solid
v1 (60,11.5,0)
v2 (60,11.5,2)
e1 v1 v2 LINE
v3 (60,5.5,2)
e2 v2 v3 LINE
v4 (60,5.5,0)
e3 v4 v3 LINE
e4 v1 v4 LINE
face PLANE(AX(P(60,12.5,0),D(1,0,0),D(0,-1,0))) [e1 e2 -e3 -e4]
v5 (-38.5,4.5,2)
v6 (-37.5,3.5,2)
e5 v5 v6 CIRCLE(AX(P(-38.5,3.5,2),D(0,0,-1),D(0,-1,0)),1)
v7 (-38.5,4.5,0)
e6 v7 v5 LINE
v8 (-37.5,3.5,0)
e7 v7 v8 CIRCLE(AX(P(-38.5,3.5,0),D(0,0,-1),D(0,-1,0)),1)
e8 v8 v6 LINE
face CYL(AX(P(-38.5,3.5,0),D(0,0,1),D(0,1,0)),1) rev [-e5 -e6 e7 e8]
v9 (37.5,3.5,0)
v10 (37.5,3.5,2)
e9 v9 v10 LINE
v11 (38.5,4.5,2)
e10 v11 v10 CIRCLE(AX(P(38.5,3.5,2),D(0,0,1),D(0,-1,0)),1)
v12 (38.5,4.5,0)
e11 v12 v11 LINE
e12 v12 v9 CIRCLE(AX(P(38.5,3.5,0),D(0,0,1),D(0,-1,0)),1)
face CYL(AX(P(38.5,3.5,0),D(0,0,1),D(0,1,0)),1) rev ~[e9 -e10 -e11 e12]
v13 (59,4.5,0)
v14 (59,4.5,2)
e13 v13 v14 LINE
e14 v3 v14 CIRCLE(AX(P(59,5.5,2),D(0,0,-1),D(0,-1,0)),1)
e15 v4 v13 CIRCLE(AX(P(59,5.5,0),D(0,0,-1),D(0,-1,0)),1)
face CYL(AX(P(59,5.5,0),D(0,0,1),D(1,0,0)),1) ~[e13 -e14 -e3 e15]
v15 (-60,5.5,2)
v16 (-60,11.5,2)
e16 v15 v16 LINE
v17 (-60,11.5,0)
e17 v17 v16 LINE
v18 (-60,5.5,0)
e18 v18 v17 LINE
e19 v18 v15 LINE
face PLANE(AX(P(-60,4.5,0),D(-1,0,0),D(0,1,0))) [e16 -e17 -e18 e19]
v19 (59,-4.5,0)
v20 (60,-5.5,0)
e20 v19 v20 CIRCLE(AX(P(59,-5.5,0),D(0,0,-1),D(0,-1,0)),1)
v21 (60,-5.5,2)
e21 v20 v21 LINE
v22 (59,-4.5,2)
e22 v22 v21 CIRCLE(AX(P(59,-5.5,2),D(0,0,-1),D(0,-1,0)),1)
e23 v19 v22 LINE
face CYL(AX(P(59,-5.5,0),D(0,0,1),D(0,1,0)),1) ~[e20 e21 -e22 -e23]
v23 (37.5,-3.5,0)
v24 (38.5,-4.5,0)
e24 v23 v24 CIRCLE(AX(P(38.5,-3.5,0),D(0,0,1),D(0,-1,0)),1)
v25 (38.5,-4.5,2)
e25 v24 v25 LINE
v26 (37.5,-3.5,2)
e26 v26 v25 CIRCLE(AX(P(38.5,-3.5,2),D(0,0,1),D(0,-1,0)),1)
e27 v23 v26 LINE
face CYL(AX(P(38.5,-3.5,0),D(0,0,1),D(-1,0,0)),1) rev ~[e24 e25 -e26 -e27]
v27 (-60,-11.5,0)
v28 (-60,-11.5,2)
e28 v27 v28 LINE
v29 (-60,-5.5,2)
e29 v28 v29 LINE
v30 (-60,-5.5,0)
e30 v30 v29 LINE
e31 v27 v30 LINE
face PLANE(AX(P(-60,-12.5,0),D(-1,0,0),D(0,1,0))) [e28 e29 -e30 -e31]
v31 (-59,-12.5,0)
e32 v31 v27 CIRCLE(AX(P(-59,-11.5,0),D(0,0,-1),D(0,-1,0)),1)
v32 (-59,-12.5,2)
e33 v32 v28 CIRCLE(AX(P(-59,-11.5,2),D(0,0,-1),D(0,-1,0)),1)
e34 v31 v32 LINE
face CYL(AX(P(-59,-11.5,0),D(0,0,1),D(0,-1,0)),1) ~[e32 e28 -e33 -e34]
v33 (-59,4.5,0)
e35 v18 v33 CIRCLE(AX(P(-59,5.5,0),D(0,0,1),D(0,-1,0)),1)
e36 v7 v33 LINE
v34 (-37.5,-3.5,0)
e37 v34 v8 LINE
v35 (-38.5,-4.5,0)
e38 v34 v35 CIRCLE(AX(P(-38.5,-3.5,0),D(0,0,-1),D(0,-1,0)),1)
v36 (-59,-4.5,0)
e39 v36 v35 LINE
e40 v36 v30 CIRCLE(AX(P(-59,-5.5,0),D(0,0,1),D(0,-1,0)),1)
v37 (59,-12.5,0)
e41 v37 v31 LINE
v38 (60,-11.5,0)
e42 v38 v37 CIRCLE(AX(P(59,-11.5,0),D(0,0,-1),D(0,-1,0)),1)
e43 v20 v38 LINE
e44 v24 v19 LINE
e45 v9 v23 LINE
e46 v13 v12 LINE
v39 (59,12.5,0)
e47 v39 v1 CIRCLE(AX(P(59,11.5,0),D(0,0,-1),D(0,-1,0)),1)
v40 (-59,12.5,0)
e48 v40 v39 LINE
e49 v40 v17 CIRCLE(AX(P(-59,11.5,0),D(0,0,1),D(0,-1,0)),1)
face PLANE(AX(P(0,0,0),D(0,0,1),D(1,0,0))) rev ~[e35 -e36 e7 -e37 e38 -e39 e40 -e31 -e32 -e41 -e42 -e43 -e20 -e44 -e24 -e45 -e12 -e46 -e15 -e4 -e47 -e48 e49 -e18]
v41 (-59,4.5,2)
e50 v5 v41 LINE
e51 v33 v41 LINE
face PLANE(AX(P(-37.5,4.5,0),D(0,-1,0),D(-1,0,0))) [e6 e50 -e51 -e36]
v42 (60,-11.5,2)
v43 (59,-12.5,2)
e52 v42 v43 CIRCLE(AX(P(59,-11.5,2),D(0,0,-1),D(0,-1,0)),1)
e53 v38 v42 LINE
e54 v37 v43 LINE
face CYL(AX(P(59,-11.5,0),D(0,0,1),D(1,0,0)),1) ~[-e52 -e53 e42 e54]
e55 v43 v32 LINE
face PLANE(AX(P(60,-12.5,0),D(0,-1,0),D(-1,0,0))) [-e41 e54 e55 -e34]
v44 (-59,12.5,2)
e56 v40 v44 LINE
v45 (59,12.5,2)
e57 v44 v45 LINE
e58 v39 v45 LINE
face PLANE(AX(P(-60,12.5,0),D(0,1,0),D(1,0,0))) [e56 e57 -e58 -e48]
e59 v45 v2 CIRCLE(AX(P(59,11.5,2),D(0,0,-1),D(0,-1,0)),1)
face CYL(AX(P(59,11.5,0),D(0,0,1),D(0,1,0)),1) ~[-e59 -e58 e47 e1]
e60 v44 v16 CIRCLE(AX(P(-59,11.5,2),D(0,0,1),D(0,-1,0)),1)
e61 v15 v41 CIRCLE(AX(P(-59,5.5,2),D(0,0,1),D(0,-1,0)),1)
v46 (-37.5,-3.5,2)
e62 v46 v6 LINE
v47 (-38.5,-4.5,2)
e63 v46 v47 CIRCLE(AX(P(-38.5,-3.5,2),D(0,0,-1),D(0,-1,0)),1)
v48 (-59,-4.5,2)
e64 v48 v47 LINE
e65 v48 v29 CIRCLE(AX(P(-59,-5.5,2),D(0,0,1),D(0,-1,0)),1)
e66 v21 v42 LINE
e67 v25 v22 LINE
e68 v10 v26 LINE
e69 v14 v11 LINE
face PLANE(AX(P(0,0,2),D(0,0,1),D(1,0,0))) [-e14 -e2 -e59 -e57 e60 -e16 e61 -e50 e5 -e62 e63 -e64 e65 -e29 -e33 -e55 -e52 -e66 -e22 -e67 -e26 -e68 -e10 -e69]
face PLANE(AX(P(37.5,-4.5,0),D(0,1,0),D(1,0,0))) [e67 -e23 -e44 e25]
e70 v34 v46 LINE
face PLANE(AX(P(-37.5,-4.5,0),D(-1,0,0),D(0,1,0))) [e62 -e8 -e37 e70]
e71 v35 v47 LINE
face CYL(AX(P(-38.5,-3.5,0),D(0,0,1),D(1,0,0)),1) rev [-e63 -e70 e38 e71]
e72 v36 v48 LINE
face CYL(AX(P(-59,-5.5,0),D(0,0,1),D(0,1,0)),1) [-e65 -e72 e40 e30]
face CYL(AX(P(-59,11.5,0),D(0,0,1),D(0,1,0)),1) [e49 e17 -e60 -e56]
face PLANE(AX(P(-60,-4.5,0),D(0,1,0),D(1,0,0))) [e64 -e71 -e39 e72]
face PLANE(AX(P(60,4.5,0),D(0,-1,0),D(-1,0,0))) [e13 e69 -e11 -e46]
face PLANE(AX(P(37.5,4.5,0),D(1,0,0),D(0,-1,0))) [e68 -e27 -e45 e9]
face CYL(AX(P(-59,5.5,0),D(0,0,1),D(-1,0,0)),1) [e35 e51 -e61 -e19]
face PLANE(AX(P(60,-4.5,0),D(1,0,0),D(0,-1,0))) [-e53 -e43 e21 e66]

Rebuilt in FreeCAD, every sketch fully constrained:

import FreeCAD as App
import Part
import Sketcher


def edges_at(feature, points):
    """Names of the edges that pass closest to the given points."""
    edges = feature.Shape.Edges
    near = lambda p: min(range(len(edges)), key=lambda i: edges[i].distToShape(Part.Vertex(*p))[0])
    return sorted({f"Edge{near(p) + 1}" for p in points})


def add_polygon(sketch, points):
    """Adds a closed chain of lines whose ends are joined by coincident constraints."""
    first, n = sketch.GeometryCount, len(points)
    for a, b in zip(points, points[1:] + points[:1]):
        sketch.addGeometry(Part.LineSegment(App.Vector(*a, 0), App.Vector(*b, 0)), False)
    for i in range(n):
        sketch.addConstraint(Sketcher.Constraint("Coincident", first + i, 2, first + (i + 1) % n, 1))

doc = App.newDocument("Part")
body = doc.addObject("PartDesign::Body", "Body")

# Sketch on XY plane
sketch1 = doc.addObject("Sketcher::SketchObject", "Sketch")
body.addObject(sketch1)
sketch1.AttachmentSupport = (doc.XY_Plane, [""])
sketch1.MapMode = "FlatFace"
add_polygon(sketch1, [(60, 12), (-60, 12), (-60, 4), (-38, 4), (-38, -4), (-60, -4), (-60, -12), (60, -12), (60, -4), (38, -4), (38, 4), (60, 4)])  # lines 0-11
sketch1.addConstraint(Sketcher.Constraint("Horizontal", 0))
sketch1.addConstraint(Sketcher.Constraint("Vertical", 1))
sketch1.addConstraint(Sketcher.Constraint("Horizontal", 2))
sketch1.addConstraint(Sketcher.Constraint("Vertical", 3))
sketch1.addConstraint(Sketcher.Constraint("Horizontal", 4))
sketch1.addConstraint(Sketcher.Constraint("Vertical", 5))
sketch1.addConstraint(Sketcher.Constraint("Horizontal", 6))
sketch1.addConstraint(Sketcher.Constraint("Vertical", 7))
sketch1.addConstraint(Sketcher.Constraint("Horizontal", 8))
sketch1.addConstraint(Sketcher.Constraint("Vertical", 9))
sketch1.addConstraint(Sketcher.Constraint("Horizontal", 10))
sketch1.addConstraint(Sketcher.Constraint("Vertical", 11))
sketch1.addConstraint(Sketcher.Constraint("Symmetric", 0, 2, 6, 2, -1, 1))
sketch1.addConstraint(Sketcher.Constraint("Symmetric", 2, 2, 8, 2, -1, 1))
sketch1.addConstraint(Sketcher.Constraint("Symmetric", 4, 2, 10, 2, -1, 1))
sketch1.addConstraint(Sketcher.Constraint("Symmetric", 4, 2, 7, 2, -2))
sketch1.addConstraint(Sketcher.Constraint("DistanceX", 0, 2, 0, 1, 120.0))
sketch1.addConstraint(Sketcher.Constraint("DistanceY", 1, 2, 1, 1, 8.0))
sketch1.addConstraint(Sketcher.Constraint("DistanceY", 5, 2, 0, 2, 25.0))
sketch1.addConstraint(Sketcher.Constraint("DistanceX", 3, 2, 8, 2, 75.0))
pad1 = doc.addObject("PartDesign::Pad", "Pad")
body.addObject(pad1)
pad1.Profile = sketch1
pad1.Length = 2
doc.recompute()

fillet = doc.addObject("PartDesign::Fillet", "Fillet")
body.addObject(fillet)
fillet.Base = (pad1, edges_at(pad1, [
    (-60, 12.5, 1),
    (-60, 4.5, 1),
    (-60, -4.5, 1),
    (-60, -12.5, 1),
    (-37.5, 4.5, 1),
    (-37.5, -4.5, 1),
    (60, -12.5, 1),
    (60, -4.5, 1),
    (37.5, 4.5, 1),
    (37.5, -4.5, 1),
    (60, 4.5, 1),
    (60, 12.5, 1),
]))
fillet.Radius = 1

doc.recompute()
